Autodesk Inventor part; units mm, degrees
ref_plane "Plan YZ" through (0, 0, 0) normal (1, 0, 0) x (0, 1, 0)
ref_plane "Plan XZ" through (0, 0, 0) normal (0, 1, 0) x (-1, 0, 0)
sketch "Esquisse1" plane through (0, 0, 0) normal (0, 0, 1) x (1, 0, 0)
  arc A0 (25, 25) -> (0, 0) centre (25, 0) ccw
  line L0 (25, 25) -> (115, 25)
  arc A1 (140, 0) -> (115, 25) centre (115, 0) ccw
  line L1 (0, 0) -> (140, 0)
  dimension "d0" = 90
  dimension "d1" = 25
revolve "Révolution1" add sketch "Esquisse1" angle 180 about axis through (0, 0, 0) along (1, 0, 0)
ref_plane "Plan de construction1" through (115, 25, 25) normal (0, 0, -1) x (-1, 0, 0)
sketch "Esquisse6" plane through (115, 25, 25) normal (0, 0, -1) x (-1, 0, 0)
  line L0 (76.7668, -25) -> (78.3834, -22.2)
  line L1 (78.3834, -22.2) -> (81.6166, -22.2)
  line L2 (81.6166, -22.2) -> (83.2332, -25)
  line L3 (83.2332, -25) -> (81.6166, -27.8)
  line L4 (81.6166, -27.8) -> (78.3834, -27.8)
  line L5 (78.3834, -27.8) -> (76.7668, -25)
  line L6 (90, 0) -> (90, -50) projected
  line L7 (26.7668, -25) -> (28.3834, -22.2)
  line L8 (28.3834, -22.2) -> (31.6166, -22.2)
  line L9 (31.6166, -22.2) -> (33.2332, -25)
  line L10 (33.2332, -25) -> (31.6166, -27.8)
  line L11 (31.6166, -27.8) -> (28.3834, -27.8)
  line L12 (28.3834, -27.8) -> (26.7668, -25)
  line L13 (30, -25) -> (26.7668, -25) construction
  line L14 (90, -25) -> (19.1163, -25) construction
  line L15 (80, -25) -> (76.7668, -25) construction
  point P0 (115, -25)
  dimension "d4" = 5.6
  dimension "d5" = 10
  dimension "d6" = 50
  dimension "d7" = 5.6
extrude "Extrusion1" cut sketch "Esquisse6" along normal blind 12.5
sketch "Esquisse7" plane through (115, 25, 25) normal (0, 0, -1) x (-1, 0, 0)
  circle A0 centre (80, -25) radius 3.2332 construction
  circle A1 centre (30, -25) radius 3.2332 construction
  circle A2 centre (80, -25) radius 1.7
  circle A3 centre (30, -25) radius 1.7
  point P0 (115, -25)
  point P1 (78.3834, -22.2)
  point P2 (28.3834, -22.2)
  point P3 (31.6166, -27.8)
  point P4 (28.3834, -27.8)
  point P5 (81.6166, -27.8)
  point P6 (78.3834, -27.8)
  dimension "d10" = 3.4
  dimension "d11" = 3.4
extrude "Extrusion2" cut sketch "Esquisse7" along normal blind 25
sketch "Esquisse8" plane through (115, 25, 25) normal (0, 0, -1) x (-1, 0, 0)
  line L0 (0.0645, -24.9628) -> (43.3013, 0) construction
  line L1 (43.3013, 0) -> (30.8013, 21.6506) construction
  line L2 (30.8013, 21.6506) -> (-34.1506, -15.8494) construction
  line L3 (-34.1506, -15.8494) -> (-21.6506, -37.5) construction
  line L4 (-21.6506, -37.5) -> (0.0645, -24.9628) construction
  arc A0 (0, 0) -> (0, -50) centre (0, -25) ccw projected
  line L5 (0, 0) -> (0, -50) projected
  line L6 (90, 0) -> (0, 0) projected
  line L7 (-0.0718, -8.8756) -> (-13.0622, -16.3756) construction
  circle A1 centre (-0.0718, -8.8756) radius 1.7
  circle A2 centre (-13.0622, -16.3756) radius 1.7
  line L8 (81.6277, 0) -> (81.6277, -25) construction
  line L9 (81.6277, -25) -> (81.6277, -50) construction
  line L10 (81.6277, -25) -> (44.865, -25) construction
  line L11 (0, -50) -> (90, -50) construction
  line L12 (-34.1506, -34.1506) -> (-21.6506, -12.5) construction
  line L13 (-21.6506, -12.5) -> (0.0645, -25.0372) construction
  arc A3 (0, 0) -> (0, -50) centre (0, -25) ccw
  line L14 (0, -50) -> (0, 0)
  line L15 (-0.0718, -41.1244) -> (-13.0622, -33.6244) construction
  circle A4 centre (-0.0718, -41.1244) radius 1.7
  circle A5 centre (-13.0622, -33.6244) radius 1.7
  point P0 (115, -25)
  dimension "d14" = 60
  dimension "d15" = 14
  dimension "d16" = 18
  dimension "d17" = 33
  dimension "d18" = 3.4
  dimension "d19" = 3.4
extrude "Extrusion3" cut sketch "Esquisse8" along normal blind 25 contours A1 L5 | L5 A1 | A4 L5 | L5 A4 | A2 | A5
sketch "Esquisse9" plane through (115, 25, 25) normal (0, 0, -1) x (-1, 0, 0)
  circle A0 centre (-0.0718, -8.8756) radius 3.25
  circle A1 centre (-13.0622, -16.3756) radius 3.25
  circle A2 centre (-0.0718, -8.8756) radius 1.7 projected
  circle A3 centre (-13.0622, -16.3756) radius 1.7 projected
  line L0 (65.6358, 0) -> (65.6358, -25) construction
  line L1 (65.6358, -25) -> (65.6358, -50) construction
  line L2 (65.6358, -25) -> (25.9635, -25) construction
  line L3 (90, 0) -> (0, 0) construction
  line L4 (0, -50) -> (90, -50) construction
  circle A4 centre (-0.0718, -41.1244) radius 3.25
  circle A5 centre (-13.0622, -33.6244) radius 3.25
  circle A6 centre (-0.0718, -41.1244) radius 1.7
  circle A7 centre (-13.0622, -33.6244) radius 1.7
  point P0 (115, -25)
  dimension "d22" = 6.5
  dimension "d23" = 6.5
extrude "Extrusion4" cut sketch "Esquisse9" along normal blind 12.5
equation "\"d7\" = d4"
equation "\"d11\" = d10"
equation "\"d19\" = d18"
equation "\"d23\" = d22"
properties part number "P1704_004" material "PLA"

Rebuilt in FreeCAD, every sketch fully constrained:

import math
import FreeCAD as App
import Part
import Sketcher
Q = App.Units.Quantity

doc = App.newDocument("Part")
body = doc.addObject("PartDesign::Body", "Body")

# Sketch on XY plane
sketch1 = body.newObject("Sketcher::SketchObject", "Sketch")
sketch1.AttachmentSupport = (doc.getObject("XY_Plane"), [""])
sketch1.MapMode = "FlatFace"
sketch1.addGeometry(Part.LineSegment(App.Vector(115, 25, 0), App.Vector(25, 25, 0)), False)
sketch1.addGeometry(Part.ArcOfCircle(Part.Circle(App.Vector(25, 0, 0), App.Vector(0, 0, 1), 25), math.radians(90), math.radians(180)), False)
sketch1.addGeometry(Part.LineSegment(App.Vector(0, 0, 0), App.Vector(140, 0, 0)), False)
sketch1.addGeometry(Part.ArcOfCircle(Part.Circle(App.Vector(115, 0, 0), App.Vector(0, 0, 1), 25), math.radians(0), math.radians(90)), False)
sketch1.addConstraint(Sketcher.Constraint("Tangent", 0, 2, 1, 1))
sketch1.addConstraint(Sketcher.Constraint("Coincident", 1, 2, 2, 1))
sketch1.addConstraint(Sketcher.Constraint("Coincident", 2, 2, 3, 1))
sketch1.addConstraint(Sketcher.Constraint("Tangent", 3, 2, 0, 1))
sketch1.addConstraint(Sketcher.Constraint("Horizontal", 0))
sketch1.addConstraint(Sketcher.Constraint("Horizontal", 2))
sketch1.addConstraint(Sketcher.Constraint("Coincident", 1, 2, -1, 1))
sketch1.addConstraint(Sketcher.Constraint("Equal", 1, 3))
sketch1.addConstraint(Sketcher.Constraint("PointOnObject", 1, 3, -1))
sketch1.addConstraint(Sketcher.Constraint("Radius", 1, 25.0))
sketch1.addConstraint(Sketcher.Constraint("DistanceX", 0, 2, 0, 1, 90.0))
revolution = body.newObject("PartDesign::Revolution", "Revolution")
revolution.Profile = sketch1
revolution.ReferenceAxis = (sketch1, ["H_Axis"])
revolution.Angle = 180

# Sketch on XY plane
sketch2 = body.newObject("Sketcher::SketchObject", "Sketch001")
sketch2.AttachmentSupport = (doc.getObject("XY_Plane"), [""])
sketch2.MapMode = "FlatFace"
sketch2.AttachmentOffset = App.Placement(App.Vector(0, 0, 25), App.Rotation())
sketch2.addGeometry(Part.LineSegment(App.Vector(36.6, 2.8, 0), App.Vector(38.2, 0, 0)), False)
sketch2.addGeometry(Part.LineSegment(App.Vector(38.2, 0, 0), App.Vector(36.6, -2.8, 0)), False)
sketch2.addGeometry(Part.LineSegment(App.Vector(36.6, -2.8, 0), App.Vector(33.4, -2.8, 0)), False)
sketch2.addGeometry(Part.LineSegment(App.Vector(33.4, -2.8, 0), App.Vector(31.8, 0, 0)), False)
sketch2.addGeometry(Part.LineSegment(App.Vector(31.8, 0, 0), App.Vector(33.4, 2.8, 0)), False)
sketch2.addGeometry(Part.LineSegment(App.Vector(33.4, 2.8, 0), App.Vector(36.6, 2.8, 0)), False)
sketch2.addGeometry(Part.LineSegment(App.Vector(86.6, 2.8, 0), App.Vector(88.2, 0, 0)), False)
sketch2.addGeometry(Part.LineSegment(App.Vector(88.2, 0, 0), App.Vector(86.6, -2.8, 0)), False)
sketch2.addGeometry(Part.LineSegment(App.Vector(86.6, -2.8, 0), App.Vector(83.4, -2.8, 0)), False)
sketch2.addGeometry(Part.LineSegment(App.Vector(83.4, -2.8, 0), App.Vector(81.8, 0, 0)), False)
sketch2.addGeometry(Part.LineSegment(App.Vector(81.8, 0, 0), App.Vector(83.4, 2.8, 0)), False)
sketch2.addGeometry(Part.LineSegment(App.Vector(83.4, 2.8, 0), App.Vector(86.6, 2.8, 0)), False)
sketch2.addConstraint(Sketcher.Constraint("Coincident", 0, 2, 1, 1))
sketch2.addConstraint(Sketcher.Constraint("Coincident", 1, 2, 2, 1))
sketch2.addConstraint(Sketcher.Constraint("Coincident", 2, 2, 3, 1))
sketch2.addConstraint(Sketcher.Constraint("Coincident", 3, 2, 4, 1))
sketch2.addConstraint(Sketcher.Constraint("Coincident", 4, 2, 5, 1))
sketch2.addConstraint(Sketcher.Constraint("Coincident", 5, 2, 0, 1))
sketch2.addConstraint(Sketcher.Constraint("Coincident", 6, 2, 7, 1))
sketch2.addConstraint(Sketcher.Constraint("Coincident", 7, 2, 8, 1))
sketch2.addConstraint(Sketcher.Constraint("Coincident", 8, 2, 9, 1))
sketch2.addConstraint(Sketcher.Constraint("Coincident", 9, 2, 10, 1))
sketch2.addConstraint(Sketcher.Constraint("Coincident", 10, 2, 11, 1))
sketch2.addConstraint(Sketcher.Constraint("Coincident", 11, 2, 6, 1))
sketch2.addConstraint(Sketcher.Constraint("Horizontal", 2))
sketch2.addConstraint(Sketcher.Constraint("Horizontal", 5))
sketch2.addConstraint(Sketcher.Constraint("Horizontal", 8))
sketch2.addConstraint(Sketcher.Constraint("Horizontal", 11))
sketch2.addConstraint(Sketcher.Constraint("Symmetric", 2, 2, 4, 2, -1))
sketch2.addConstraint(Sketcher.Constraint("Symmetric", 8, 2, 10, 2, -1))
sketch2.addConstraint(Sketcher.Constraint("PointOnObject", 0, 2, -1))
sketch2.addConstraint(Sketcher.Constraint("PointOnObject", 3, 2, -1))
sketch2.addConstraint(Sketcher.Constraint("PointOnObject", 6, 2, -1))
sketch2.addConstraint(Sketcher.Constraint("PointOnObject", 9, 2, -1))
sketch2.addConstraint(Sketcher.Constraint("Parallel", 0, 3))
sketch2.addConstraint(Sketcher.Constraint("Parallel", 1, 4))
sketch2.addConstraint(Sketcher.Constraint("Parallel", 3, 6))
sketch2.addConstraint(Sketcher.Constraint("Parallel", 4, 7))
sketch2.addConstraint(Sketcher.Constraint("Parallel", 6, 9))
sketch2.addConstraint(Sketcher.Constraint("Horizontal", 2, 2, 7, 2))
sketch2.addConstraint(Sketcher.Constraint("Equal", 5, 8))
sketch2.addConstraint(Sketcher.Constraint("DistanceX", 0, 2, 6, 2, 50.0))
sketch2.addConstraint(Sketcher.Constraint("DistanceY", 2, 2, 4, 2, 5.6))
sketch2.addConstraint(Sketcher.Constraint("Angle", 0, Q("-59.9997 deg")))
sketch2.addConstraint(Sketcher.Constraint("DistanceX", 2, 2, 2, 1, 3.2332))
sketch2.addConstraint(Sketcher.Constraint("DistanceX", -1, 1, 0, 2, 38.2332))
pocket1 = body.newObject("PartDesign::Pocket", "Pocket")
pocket1.Profile = sketch2
pocket1.Length = 12.5

# Sketch on XY plane
sketch3 = body.newObject("Sketcher::SketchObject", "Sketch002")
sketch3.AttachmentSupport = (doc.getObject("XY_Plane"), [""])
sketch3.MapMode = "FlatFace"
sketch3.AttachmentOffset = App.Placement(App.Vector(0, 0, 25), App.Rotation())
sketch3.addGeometry(Part.Circle(App.Vector(35, 0, 0), App.Vector(0, 0, 1), 1.7), False)
sketch3.addGeometry(Part.Circle(App.Vector(85, 0, 0), App.Vector(0, 0, 1), 1.7), False)
sketch3.addConstraint(Sketcher.Constraint("Equal", 0, 1))
sketch3.addConstraint(Sketcher.Constraint("PointOnObject", 0, 3, -1))
sketch3.addConstraint(Sketcher.Constraint("PointOnObject", 1, 3, -1))
sketch3.addConstraint(Sketcher.Constraint("Diameter", 0, 3.4))
sketch3.addConstraint(Sketcher.Constraint("DistanceX", -1, 1, 0, 3, 35.0))
sketch3.addConstraint(Sketcher.Constraint("DistanceX", -1, 1, 1, 3, 85.0))
pocket2 = body.newObject("PartDesign::Pocket", "Pocket001")
pocket2.Profile = sketch3
pocket2.Length = 25

# Sketch on XY plane
sketch4 = body.newObject("Sketcher::SketchObject", "Sketch003")
sketch4.AttachmentSupport = (doc.getObject("XY_Plane"), [""])
sketch4.MapMode = "FlatFace"
sketch4.AttachmentOffset = App.Placement(App.Vector(0, 0, 25), App.Rotation())
sketch4.addGeometry(Part.Circle(App.Vector(115.1, 16.1, 0), App.Vector(0, 0, 1), 1.7), False)
sketch4.addGeometry(Part.Circle(App.Vector(115.1, -16.1, 0), App.Vector(0, 0, 1), 1.7), False)
sketch4.addGeometry(Part.Circle(App.Vector(128.1, 8.6, 0), App.Vector(0, 0, 1), 1.7), False)
sketch4.addGeometry(Part.Circle(App.Vector(128.1, -8.6, 0), App.Vector(0, 0, 1), 1.7), False)
sketch4.addConstraint(Sketcher.Constraint("Equal", 0, 1))
sketch4.addConstraint(Sketcher.Constraint("Equal", 1, 2))
sketch4.addConstraint(Sketcher.Constraint("Equal", 2, 3))
sketch4.addConstraint(Sketcher.Constraint("Symmetric", 0, 3, 1, 3, -1))
sketch4.addConstraint(Sketcher.Constraint("Symmetric", 2, 3, 3, 3, -1))
sketch4.addConstraint(Sketcher.Constraint("Diameter", 0, 3.4))
sketch4.addConstraint(Sketcher.Constraint("DistanceY", 2, 3, 0, 3, 7.5))
sketch4.addConstraint(Sketcher.Constraint("DistanceX", -1, 1, 0, 3, 115.0718))
sketch4.addConstraint(Sketcher.Constraint("DistanceY", -1, 1, 0, 3, 16.1244))
sketch4.addConstraint(Sketcher.Constraint("DistanceX", -1, 1, 2, 3, 128.0622))
pocket3 = body.newObject("PartDesign::Pocket", "Pocket002")
pocket3.Profile = sketch4
pocket3.Length = 25

# Sketch on XY plane
sketch5 = body.newObject("Sketcher::SketchObject", "Sketch004")
sketch5.AttachmentSupport = (doc.getObject("XY_Plane"), [""])
sketch5.MapMode = "FlatFace"
sketch5.AttachmentOffset = App.Placement(App.Vector(0, 0, 25), App.Rotation())
sketch5.addGeometry(Part.Circle(App.Vector(115.1, 16.1, 0), App.Vector(0, 0, 1), 3.2), False)
sketch5.addGeometry(Part.Circle(App.Vector(115.1, 16.1, 0), App.Vector(0, 0, 1), 1.7), False)
sketch5.addGeometry(Part.Circle(App.Vector(128.1, 8.6, 0), App.Vector(0, 0, 1), 3.2), False)
sketch5.addGeometry(Part.Circle(App.Vector(128.1, 8.6, 0), App.Vector(0, 0, 1), 1.7), False)
sketch5.addGeometry(Part.Circle(App.Vector(115.1, -16.1, 0), App.Vector(0, 0, 1), 3.2), False)
sketch5.addGeometry(Part.Circle(App.Vector(115.1, -16.1, 0), App.Vector(0, 0, 1), 1.7), False)
sketch5.addGeometry(Part.Circle(App.Vector(128.1, -8.6, 0), App.Vector(0, 0, 1), 3.2), False)
sketch5.addGeometry(Part.Circle(App.Vector(128.1, -8.6, 0), App.Vector(0, 0, 1), 1.7), False)
sketch5.addConstraint(Sketcher.Constraint("Coincident", 1, 3, 0, 3))
sketch5.addConstraint(Sketcher.Constraint("Coincident", 3, 3, 2, 3))
sketch5.addConstraint(Sketcher.Constraint("Coincident", 5, 3, 4, 3))
sketch5.addConstraint(Sketcher.Constraint("Coincident", 7, 3, 6, 3))
sketch5.addConstraint(Sketcher.Constraint("Equal", 0, 2))
sketch5.addConstraint(Sketcher.Constraint("Equal", 1, 3))
sketch5.addConstraint(Sketcher.Constraint("Equal", 2, 4))
sketch5.addConstraint(Sketcher.Constraint("Equal", 3, 5))
sketch5.addConstraint(Sketcher.Constraint("Equal", 4, 6))
sketch5.addConstraint(Sketcher.Constraint("Equal", 5, 7))
sketch5.addConstraint(Sketcher.Constraint("Symmetric", 0, 3, 4, 3, -1))
sketch5.addConstraint(Sketcher.Constraint("Symmetric", 2, 3, 6, 3, -1))
sketch5.addConstraint(Sketcher.Constraint("Diameter", 0, 6.5))
sketch5.addConstraint(Sketcher.Constraint("Diameter", 1, 3.4))
sketch5.addConstraint(Sketcher.Constraint("DistanceY", 2, 3, 0, 3, 7.5))
sketch5.addConstraint(Sketcher.Constraint("DistanceX", -1, 1, 0, 3, 115.0718))
sketch5.addConstraint(Sketcher.Constraint("DistanceY", -1, 1, 0, 3, 16.1244))
sketch5.addConstraint(Sketcher.Constraint("DistanceX", -1, 1, 2, 3, 128.0622))
pocket4 = body.newObject("PartDesign::Pocket", "Pocket003")
pocket4.Profile = sketch5
pocket4.Length = 12.5

doc.recompute()
